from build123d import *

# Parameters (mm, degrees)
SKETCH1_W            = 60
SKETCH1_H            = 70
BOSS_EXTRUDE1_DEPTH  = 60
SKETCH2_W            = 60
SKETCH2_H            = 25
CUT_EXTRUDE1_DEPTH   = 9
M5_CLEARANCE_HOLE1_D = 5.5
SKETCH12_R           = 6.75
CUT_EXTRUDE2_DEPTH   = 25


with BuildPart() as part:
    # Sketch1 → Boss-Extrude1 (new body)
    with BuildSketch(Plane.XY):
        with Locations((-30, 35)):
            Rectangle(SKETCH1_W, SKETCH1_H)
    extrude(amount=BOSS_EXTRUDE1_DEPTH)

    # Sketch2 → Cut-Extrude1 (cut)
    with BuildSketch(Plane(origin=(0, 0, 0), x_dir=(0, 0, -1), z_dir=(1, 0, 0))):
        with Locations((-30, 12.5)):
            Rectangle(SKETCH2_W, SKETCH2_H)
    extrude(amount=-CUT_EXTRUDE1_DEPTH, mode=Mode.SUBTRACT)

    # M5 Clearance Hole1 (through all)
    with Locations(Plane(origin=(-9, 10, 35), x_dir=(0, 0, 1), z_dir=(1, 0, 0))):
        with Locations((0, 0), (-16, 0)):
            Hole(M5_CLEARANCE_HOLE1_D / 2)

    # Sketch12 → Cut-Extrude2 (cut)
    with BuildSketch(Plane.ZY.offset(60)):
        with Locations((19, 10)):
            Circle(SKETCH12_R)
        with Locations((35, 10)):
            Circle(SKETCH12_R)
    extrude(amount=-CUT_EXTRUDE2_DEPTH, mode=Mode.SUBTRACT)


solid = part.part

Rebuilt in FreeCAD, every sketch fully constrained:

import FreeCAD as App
import Part
import Sketcher

V = App.Vector
Q = App.Units.Quantity


def add_polygon(sketch, points):
    """Adds a closed chain of lines whose ends are joined by coincident constraints."""
    first, n = sketch.GeometryCount, len(points)
    for a, b in zip(points, points[1:] + points[:1]):
        sketch.addGeometry(Part.LineSegment(App.Vector(*a, 0), App.Vector(*b, 0)), False)
    for i in range(n):
        sketch.addConstraint(Sketcher.Constraint("Coincident", first + i, 2, first + (i + 1) % n, 1))

doc = App.newDocument("Part")
body = doc.addObject("PartDesign::Body", "Body")

sketch1 = body.newObject("Sketcher::SketchObject", "Sketch")
sketch1.AttachmentSupport = (doc.getObject("XY_Plane"), [""])
sketch1.MapMode = "FlatFace"
add_polygon(sketch1, [(-60, 70), (-60, 0), (0, 0), (0, 70)])
sketch1.addConstraint([
    Sketcher.Constraint("Vertical", 0),
    Sketcher.Constraint("Horizontal", 1),
    Sketcher.Constraint("Vertical", 2),
    Sketcher.Constraint("Horizontal", 3),
    Sketcher.Constraint("Coincident", 1, 2, -1, 1),
    Sketcher.Constraint("DistanceX", 1, 1, 1, 2, Q("60 mm")),
    Sketcher.Constraint("DistanceY", 0, 2, 0, 1, Q("70 mm")),
])
pad1 = body.newObject("PartDesign::Pad", "Pad")
pad1.Profile = sketch1
pad1.Length = 60

sketch2 = body.newObject("Sketcher::SketchObject", "Sketch001")
sketch2.AttachmentSupport = (doc.getObject("YZ_Plane"), [""])
sketch2.MapMode = "FlatFace"
add_polygon(sketch2, [(25, 60), (0, 60), (0, 0), (25, 0)])
sketch2.addConstraint([
    Sketcher.Constraint("Horizontal", 0),
    Sketcher.Constraint("Vertical", 1),
    Sketcher.Constraint("Horizontal", 2),
    Sketcher.Constraint("Vertical", 3),
    Sketcher.Constraint("Coincident", 1, 2, -1, 1),
    Sketcher.Constraint("DistanceX", 0, 2, 0, 1, Q("25 mm")),
    Sketcher.Constraint("DistanceY", 1, 2, 1, 1, Q("60 mm")),
])
pocket1 = body.newObject("PartDesign::Pocket", "Pocket")
pocket1.Profile = sketch2
pocket1.Length = 9

sketch3 = body.newObject("Sketcher::SketchObject", "Sketch002")
sketch3.AttachmentSupport = (doc.getObject("YZ_Plane"), [""])
sketch3.MapMode = "FlatFace"
sketch3.AttachmentOffset = App.Placement(V(0, 0, -9), App.Rotation())
sketch3.addGeometry([
    Part.Circle(V(10, 35, 0), V(0, 0, 1), 2.8),
    Part.Circle(V(10, 19, 0), V(0, 0, 1), 2.8),
], False)
sketch3.addConstraint([
    Sketcher.Constraint("Equal", 0, 1),
    Sketcher.Constraint("Vertical", 0, 3, 1, 3),
    Sketcher.Constraint("Diameter", 0, Q("5.5 mm")),
    Sketcher.Constraint("DistanceX", -1, 1, 0, 3, Q("10 mm")),
    Sketcher.Constraint("DistanceY", -1, 1, 0, 3, Q("35 mm")),
    Sketcher.Constraint("DistanceY", -1, 1, 1, 3, Q("19 mm")),
])
doc.recompute()
hole = body.newObject("PartDesign::Hole", "Hole")
hole.Profile = sketch3
hole.ThreadType = "None"
hole.Diameter = 5.5
hole.DepthType = "ThroughAll"

sketch4 = body.newObject("Sketcher::SketchObject", "Sketch003")
sketch4.AttachmentSupport = (doc.getObject("YZ_Plane"), [""])
sketch4.MapMode = "FlatFace"
sketch4.AttachmentOffset = App.Placement(V(0, 0, -60), App.Rotation())
sketch4.addGeometry([
    Part.Circle(V(10, 19, 0), V(0, 0, 1), 7),
    Part.Circle(V(10, 35, 0), V(0, 0, 1), 7),
], False)
sketch4.addConstraint([
    Sketcher.Constraint("Equal", 0, 1),
    Sketcher.Constraint("Vertical", 0, 3, 1, 3),
    Sketcher.Constraint("Diameter", 0, Q("13.5 mm")),
    Sketcher.Constraint("DistanceX", -1, 1, 0, 3, Q("10 mm")),
    Sketcher.Constraint("DistanceY", -1, 1, 0, 3, Q("19 mm")),
    Sketcher.Constraint("DistanceY", -1, 1, 1, 3, Q("35 mm")),
])
pocket2 = body.newObject("PartDesign::Pocket", "Pocket001")
pocket2.Profile = sketch4
pocket2.Length = 25
pocket2.Reversed = True

doc.recompute()
